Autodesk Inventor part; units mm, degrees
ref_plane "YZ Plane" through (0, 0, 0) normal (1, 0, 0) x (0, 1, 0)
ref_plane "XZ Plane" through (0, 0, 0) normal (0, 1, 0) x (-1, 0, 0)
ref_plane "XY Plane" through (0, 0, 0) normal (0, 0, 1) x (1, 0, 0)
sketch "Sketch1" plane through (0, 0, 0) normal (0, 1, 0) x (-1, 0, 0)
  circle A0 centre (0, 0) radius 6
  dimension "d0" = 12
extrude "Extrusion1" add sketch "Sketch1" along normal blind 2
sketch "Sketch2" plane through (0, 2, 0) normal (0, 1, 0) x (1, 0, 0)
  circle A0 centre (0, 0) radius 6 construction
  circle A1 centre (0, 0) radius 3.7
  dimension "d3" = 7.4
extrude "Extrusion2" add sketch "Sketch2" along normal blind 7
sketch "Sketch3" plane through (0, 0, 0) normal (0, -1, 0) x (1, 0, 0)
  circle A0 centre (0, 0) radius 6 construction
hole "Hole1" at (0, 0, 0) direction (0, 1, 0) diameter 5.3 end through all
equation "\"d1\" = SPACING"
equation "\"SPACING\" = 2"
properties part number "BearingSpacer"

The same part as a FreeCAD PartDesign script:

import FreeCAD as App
import Part
import Sketcher

V = App.Vector

doc = App.newDocument("Part")
body = doc.addObject("PartDesign::Body", "Body")

sketch1 = body.newObject("Sketcher::SketchObject", "Sketch")
sketch1.AttachmentSupport = (doc.getObject("XZ_Plane"), [""])
sketch1.MapMode = "FlatFace"
sketch1.addGeometry(Part.Circle(V(0, 0, 0), V(0, 0, 1), 6), False)
sketch1.addConstraint([
    Sketcher.Constraint("Coincident", 0, 3, -1, 1),
    Sketcher.Constraint("Diameter", 0, 12.0),
])
pad1 = body.newObject("PartDesign::Pad", "Pad")
pad1.Profile = sketch1
pad1.Length = 2
pad1.Reversed = True

sketch2 = body.newObject("Sketcher::SketchObject", "Sketch001")
sketch2.AttachmentSupport = (doc.getObject("XZ_Plane"), [""])
sketch2.MapMode = "FlatFace"
sketch2.AttachmentOffset = App.Placement(V(0, 0, -2), App.Rotation())
sketch2.addGeometry(Part.Circle(V(0, 0, 0), V(0, 0, 1), 3.7), False)
sketch2.addConstraint([
    Sketcher.Constraint("Coincident", 0, 3, -1, 1),
    Sketcher.Constraint("Diameter", 0, 7.4),
])
pad2 = body.newObject("PartDesign::Pad", "Pad001")
pad2.Profile = sketch2
pad2.Length = 7
pad2.Reversed = True

sketch3 = body.newObject("Sketcher::SketchObject", "Sketch002")
sketch3.AttachmentSupport = (doc.getObject("XZ_Plane"), [""])
sketch3.MapMode = "FlatFace"
sketch3.addGeometry(Part.Circle(V(0, 0, 0), V(0, 0, 1), 2.6), False)
sketch3.addConstraint([
    Sketcher.Constraint("Coincident", 0, 3, -1, 1),
    Sketcher.Constraint("Diameter", 0, 5.3),
])
doc.recompute()
hole = body.newObject("PartDesign::Hole", "Hole")
hole.Profile = sketch3
hole.ThreadType = "None"
hole.Diameter = 5.3
hole.DepthType = "ThroughAll"

doc.recompute()
